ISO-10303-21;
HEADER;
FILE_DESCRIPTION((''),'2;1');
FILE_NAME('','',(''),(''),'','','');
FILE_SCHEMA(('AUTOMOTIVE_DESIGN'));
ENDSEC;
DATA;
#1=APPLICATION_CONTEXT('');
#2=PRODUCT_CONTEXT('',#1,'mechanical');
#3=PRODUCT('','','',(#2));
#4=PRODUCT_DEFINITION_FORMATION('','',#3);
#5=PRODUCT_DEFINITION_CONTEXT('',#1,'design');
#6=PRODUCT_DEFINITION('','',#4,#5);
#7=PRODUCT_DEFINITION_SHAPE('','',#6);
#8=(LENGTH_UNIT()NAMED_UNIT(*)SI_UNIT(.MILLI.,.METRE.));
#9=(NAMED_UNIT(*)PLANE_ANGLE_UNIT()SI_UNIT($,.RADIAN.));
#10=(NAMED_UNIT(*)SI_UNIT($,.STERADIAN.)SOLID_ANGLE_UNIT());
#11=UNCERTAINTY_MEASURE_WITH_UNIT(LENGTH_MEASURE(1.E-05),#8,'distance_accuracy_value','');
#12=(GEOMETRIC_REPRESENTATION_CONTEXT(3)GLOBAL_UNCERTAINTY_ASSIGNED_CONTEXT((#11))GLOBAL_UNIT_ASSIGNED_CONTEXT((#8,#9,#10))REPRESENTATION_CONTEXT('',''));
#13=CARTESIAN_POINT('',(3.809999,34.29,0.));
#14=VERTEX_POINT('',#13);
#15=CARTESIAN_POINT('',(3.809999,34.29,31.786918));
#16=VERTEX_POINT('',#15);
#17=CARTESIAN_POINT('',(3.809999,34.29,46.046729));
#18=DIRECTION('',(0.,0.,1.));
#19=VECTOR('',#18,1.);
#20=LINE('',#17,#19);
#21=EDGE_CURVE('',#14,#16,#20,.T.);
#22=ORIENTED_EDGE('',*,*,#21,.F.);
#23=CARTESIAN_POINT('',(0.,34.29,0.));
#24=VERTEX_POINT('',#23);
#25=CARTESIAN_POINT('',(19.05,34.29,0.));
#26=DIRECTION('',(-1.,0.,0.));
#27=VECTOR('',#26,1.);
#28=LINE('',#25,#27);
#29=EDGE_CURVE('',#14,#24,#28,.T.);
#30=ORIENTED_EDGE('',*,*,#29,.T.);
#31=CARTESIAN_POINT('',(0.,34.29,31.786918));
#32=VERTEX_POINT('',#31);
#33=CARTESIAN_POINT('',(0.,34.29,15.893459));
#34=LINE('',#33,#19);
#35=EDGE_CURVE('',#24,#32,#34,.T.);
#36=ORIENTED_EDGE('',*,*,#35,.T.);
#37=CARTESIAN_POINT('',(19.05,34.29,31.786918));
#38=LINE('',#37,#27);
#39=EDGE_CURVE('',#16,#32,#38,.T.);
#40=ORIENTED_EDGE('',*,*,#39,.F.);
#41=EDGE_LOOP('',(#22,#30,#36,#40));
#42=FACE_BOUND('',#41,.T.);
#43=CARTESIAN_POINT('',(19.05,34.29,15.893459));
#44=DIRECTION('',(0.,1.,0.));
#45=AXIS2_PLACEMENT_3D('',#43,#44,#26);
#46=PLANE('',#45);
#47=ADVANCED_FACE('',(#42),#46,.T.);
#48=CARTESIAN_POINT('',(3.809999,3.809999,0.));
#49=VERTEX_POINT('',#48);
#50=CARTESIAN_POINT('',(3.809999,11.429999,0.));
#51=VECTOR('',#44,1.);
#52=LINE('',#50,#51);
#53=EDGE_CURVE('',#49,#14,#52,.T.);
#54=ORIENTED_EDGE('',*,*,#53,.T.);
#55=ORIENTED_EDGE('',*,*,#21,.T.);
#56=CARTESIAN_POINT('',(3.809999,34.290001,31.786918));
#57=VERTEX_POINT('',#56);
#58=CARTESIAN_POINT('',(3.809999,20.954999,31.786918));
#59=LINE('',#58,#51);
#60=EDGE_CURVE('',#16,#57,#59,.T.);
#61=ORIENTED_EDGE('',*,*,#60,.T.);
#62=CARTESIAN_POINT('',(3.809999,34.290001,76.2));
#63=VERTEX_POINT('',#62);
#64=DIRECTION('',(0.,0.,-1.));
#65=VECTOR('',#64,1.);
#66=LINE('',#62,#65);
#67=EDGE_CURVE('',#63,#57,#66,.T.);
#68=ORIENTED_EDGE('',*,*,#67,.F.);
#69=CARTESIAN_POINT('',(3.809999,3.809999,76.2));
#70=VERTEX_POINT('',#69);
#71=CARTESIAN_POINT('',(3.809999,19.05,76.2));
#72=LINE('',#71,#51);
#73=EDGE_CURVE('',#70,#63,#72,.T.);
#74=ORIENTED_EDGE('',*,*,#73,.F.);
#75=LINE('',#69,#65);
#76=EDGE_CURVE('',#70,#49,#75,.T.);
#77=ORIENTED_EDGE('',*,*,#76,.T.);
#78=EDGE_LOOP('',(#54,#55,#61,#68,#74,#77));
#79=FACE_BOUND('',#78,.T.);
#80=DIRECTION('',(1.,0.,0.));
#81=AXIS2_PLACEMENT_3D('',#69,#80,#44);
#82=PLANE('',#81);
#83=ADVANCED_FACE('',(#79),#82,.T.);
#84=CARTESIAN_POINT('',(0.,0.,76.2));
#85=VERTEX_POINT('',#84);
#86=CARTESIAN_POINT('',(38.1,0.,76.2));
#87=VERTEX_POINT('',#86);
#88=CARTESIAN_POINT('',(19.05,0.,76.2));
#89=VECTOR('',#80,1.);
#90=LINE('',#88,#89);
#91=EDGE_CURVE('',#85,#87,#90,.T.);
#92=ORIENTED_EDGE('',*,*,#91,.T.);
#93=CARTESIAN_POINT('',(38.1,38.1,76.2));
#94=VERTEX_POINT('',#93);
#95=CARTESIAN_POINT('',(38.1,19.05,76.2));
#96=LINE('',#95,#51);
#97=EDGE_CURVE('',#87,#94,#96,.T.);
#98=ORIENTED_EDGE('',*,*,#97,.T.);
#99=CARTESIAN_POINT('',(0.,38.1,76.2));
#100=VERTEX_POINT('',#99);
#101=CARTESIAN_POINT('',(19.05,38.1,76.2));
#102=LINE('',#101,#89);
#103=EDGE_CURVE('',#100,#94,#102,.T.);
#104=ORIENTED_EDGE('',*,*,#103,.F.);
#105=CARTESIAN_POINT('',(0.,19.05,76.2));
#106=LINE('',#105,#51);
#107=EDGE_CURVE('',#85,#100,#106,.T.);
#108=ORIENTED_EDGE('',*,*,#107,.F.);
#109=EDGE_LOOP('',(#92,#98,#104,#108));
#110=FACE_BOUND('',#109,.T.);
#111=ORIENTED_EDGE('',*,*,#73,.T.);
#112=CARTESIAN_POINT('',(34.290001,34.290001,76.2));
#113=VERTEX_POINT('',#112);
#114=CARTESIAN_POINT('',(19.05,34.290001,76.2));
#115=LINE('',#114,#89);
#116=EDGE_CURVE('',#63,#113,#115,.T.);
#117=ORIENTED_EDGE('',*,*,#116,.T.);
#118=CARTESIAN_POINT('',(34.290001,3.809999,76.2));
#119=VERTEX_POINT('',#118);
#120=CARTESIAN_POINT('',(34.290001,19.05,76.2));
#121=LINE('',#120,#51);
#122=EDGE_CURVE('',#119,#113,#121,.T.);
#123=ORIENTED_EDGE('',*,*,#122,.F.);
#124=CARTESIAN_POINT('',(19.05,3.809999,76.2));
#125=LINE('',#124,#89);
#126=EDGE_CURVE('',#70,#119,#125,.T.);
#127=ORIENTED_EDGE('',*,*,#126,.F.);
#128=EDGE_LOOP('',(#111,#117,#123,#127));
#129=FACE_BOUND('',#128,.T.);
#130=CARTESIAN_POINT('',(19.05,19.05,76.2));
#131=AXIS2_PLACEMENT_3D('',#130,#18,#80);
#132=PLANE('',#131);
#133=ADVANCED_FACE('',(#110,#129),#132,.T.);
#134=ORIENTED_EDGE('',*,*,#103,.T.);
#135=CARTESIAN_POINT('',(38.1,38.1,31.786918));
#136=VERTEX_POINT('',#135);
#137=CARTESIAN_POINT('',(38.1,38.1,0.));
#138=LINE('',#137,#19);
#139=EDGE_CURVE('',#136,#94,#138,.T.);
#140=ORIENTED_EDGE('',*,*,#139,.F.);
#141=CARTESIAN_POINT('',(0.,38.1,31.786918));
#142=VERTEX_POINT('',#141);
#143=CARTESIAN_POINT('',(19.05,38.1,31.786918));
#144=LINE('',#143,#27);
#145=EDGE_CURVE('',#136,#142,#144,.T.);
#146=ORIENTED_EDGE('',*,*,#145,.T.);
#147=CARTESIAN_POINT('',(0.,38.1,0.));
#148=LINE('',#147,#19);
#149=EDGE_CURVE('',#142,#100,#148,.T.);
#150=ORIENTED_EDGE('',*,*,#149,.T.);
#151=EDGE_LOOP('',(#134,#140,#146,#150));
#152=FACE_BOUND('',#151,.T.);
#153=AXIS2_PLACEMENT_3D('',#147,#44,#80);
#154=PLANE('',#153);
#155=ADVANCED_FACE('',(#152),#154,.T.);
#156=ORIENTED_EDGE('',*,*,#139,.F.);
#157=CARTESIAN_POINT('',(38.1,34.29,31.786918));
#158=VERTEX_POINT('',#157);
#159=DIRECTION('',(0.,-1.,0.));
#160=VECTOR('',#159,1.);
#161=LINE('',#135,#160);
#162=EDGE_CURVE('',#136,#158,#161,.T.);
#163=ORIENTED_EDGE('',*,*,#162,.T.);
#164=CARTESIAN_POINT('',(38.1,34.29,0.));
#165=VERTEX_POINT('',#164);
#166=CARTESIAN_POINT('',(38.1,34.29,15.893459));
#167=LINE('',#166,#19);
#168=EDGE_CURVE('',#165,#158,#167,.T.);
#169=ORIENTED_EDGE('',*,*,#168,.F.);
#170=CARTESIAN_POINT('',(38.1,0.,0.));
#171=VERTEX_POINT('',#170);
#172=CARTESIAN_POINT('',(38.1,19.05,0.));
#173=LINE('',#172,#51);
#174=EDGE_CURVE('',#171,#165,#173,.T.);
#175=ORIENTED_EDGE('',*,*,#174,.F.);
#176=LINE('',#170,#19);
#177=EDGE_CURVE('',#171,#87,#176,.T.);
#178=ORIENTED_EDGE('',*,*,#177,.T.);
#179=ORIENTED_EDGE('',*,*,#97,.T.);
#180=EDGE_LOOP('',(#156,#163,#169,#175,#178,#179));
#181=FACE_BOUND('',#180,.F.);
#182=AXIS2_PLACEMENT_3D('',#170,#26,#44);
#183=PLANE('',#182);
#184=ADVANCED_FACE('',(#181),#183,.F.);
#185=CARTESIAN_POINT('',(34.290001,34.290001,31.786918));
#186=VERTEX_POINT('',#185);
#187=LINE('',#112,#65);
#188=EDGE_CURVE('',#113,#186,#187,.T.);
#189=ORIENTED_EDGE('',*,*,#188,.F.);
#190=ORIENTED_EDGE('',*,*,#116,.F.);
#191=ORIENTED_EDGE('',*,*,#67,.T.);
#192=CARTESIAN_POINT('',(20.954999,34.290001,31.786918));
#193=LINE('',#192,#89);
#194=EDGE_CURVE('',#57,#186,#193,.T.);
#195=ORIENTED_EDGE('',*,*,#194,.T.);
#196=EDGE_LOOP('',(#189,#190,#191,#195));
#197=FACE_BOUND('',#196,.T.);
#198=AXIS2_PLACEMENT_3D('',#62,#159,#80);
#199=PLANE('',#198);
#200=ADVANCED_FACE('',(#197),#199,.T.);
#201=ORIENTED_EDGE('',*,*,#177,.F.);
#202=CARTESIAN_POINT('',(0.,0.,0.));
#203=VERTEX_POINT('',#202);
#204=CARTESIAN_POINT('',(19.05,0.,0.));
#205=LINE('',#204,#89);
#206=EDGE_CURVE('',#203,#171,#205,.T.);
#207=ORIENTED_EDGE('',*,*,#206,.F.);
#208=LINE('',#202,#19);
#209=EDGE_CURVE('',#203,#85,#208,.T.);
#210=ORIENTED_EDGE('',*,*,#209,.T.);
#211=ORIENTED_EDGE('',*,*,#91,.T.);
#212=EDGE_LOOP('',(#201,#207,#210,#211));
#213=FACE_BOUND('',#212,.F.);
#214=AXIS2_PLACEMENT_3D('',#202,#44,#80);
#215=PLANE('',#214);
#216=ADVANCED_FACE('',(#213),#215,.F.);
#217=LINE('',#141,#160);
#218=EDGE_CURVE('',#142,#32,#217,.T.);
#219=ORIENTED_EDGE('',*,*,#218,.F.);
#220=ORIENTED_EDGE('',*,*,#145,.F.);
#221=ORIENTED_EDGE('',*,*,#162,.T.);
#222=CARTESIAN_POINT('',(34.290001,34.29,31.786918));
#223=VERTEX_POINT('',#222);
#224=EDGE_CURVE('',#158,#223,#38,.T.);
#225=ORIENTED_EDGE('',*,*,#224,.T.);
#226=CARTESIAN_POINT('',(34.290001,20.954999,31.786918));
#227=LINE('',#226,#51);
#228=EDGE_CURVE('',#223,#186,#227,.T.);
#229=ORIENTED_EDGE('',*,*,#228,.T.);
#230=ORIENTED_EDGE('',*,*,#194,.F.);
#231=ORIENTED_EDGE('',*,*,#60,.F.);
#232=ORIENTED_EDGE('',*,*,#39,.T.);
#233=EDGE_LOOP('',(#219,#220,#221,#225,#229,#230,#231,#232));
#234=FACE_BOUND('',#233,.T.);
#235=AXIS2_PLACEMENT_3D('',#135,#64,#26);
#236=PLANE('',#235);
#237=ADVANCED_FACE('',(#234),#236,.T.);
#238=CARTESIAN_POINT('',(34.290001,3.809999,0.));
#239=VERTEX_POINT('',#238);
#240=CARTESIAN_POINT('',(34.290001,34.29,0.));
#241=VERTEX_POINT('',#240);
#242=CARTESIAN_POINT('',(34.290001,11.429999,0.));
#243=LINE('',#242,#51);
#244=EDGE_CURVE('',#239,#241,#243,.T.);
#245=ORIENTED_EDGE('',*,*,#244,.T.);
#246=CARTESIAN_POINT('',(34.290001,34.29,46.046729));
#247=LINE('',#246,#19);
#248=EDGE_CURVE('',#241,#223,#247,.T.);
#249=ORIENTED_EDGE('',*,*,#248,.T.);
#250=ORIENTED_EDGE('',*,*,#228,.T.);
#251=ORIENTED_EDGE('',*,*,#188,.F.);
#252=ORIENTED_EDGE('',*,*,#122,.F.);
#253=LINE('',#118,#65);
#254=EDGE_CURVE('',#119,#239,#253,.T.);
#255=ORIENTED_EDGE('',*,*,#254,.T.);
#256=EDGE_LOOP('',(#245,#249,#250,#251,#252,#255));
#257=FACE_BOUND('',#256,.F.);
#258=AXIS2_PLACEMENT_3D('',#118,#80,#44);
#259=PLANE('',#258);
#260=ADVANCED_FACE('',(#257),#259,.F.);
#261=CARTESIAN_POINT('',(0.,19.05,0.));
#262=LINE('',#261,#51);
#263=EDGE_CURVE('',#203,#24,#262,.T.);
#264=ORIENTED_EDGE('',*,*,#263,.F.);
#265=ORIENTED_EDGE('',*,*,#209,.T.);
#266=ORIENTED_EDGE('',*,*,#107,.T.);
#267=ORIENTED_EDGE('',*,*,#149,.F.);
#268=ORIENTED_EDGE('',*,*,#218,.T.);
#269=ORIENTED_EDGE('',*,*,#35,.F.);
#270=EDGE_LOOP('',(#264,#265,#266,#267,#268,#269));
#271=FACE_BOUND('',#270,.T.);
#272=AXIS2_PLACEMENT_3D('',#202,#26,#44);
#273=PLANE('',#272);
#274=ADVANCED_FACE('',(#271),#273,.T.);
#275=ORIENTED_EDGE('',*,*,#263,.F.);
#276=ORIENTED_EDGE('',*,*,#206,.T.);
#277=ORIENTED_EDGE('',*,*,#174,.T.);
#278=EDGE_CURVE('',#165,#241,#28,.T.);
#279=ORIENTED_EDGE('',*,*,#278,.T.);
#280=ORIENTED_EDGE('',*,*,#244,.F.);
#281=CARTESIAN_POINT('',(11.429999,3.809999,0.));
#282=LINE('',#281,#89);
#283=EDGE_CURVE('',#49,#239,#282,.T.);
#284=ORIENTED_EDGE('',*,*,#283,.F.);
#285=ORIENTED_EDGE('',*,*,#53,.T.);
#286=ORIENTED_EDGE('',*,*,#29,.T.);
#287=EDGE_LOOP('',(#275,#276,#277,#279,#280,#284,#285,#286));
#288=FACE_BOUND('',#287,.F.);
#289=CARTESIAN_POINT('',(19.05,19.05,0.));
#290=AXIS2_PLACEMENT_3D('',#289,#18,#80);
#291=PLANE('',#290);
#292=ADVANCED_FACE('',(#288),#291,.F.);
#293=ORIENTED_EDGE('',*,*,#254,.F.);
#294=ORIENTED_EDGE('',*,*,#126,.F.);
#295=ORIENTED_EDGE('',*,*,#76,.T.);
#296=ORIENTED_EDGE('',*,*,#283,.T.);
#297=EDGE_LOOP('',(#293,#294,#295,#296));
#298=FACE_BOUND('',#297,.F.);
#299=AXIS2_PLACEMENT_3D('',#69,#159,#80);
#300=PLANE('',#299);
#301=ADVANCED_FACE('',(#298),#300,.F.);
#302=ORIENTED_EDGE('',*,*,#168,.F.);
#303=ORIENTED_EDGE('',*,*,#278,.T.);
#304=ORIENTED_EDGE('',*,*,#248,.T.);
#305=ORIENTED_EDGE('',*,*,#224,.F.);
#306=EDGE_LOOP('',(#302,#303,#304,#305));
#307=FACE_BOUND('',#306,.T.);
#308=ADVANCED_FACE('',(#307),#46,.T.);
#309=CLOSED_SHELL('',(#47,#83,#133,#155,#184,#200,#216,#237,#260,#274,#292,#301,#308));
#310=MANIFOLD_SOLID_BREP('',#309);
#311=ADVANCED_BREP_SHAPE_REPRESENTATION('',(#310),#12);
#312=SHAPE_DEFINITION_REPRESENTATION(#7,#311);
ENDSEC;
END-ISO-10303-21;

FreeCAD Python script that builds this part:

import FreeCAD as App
import Part
import Sketcher
Q = App.Units.Quantity


def add_polygon(sketch, points):
    """Adds a closed chain of lines whose ends are joined by coincident constraints."""
    first, n = sketch.GeometryCount, len(points)
    for a, b in zip(points, points[1:] + points[:1]):
        sketch.addGeometry(Part.LineSegment(App.Vector(*a, 0), App.Vector(*b, 0)), False)
    for i in range(n):
        sketch.addConstraint(Sketcher.Constraint("Coincident", first + i, 2, first + (i + 1) % n, 1))

doc = App.newDocument("Part")
params = doc.addObject("Spreadsheet::Sheet", "Params")
for row, (alias, value) in enumerate([
    ("sketch1_width", "1.5 in"),
    ("pad1_length", "3 in"),
    ("sketch2_width", "1.2000001 in"),
    ("pocket1_length", "3.5 in"),
    ("sketch3_width", "1.5 in"),
    ("pocket2_length", "0.15 in"),
], start=1):
    params.set(f"A{row}", alias)
    params.set(f"B{row}", "=" + value)
    params.setAlias(f"B{row}", alias)

body = doc.addObject("PartDesign::Body", "Body")

sketch1 = body.newObject("Sketcher::SketchObject", "Sketch")
sketch1.AttachmentSupport = (doc.getObject("XY_Plane"), [""])
sketch1.MapMode = "FlatFace"
add_polygon(sketch1, [(0, 38), (0, 0), (38, 0), (38, 38)])
sketch1.addConstraint([
    Sketcher.Constraint("Vertical", 0),
    Sketcher.Constraint("Horizontal", 1),
    Sketcher.Constraint("Vertical", 2),
    Sketcher.Constraint("Horizontal", 3),
    Sketcher.Constraint("Coincident", 0, 2, -1, 1),
    Sketcher.Constraint("Equal", 3, 0),
    Sketcher.Constraint("DistanceX", 1, 1, 1, 2, Q("1.5 in")),
])
sketch1.setExpression("Constraints[10]", "Params.sketch1_width")
pad1 = body.newObject("PartDesign::Pad", "Pad")
pad1.Profile = sketch1
pad1.setExpression("Length", "Params.pad1_length")

sketch2 = body.newObject("Sketcher::SketchObject", "Sketch001")
sketch2.AttachmentSupport = (doc.getObject("XY_Plane"), [""])
sketch2.MapMode = "FlatFace"
sketch2.AttachmentOffset = App.Placement(App.Vector(0, 0, 3 * 25.4), App.Rotation())
add_polygon(sketch2, [(4, 34), (4, 4), (34, 4), (34, 34)])
sketch2.addConstraint([
    Sketcher.Constraint("Vertical", 0),
    Sketcher.Constraint("Horizontal", 1),
    Sketcher.Constraint("Vertical", 2),
    Sketcher.Constraint("Horizontal", 3),
    Sketcher.Constraint("Equal", 3, 0),
    Sketcher.Constraint("DistanceX", 1, 1, 1, 2, Q("1.2000001 in")),
    Sketcher.Constraint("DistanceX", -1, 1, 0, 2, Q("0.15 in")),
    Sketcher.Constraint("DistanceY", -1, 1, 0, 2, Q("0.15 in")),
])
sketch2.setExpression("Constraints[9]", "Params.sketch2_width")
pocket1 = body.newObject("PartDesign::Pocket", "Pocket")
pocket1.Profile = sketch2
pocket1.setExpression("Length", "Params.pocket1_length")

sketch3 = body.newObject("Sketcher::SketchObject", "Sketch002")
sketch3.AttachmentSupport = (doc.getObject("XZ_Plane"), [""])
sketch3.MapMode = "FlatFace"
sketch3.AttachmentOffset = App.Placement(App.Vector(0, 0, -1.5 * 25.4), App.Rotation())
add_polygon(sketch3, [(38, 32), (38, 0), (0, 0), (0, 32)])
sketch3.addConstraint([
    Sketcher.Constraint("Vertical", 0),
    Sketcher.Constraint("Horizontal", 1),
    Sketcher.Constraint("Vertical", 2),
    Sketcher.Constraint("Horizontal", 3),
    Sketcher.Constraint("Coincident", 1, 2, -1, 1),
    Sketcher.Constraint("DistanceX", 1, 2, 1, 1, Q("1.5 in")),
    Sketcher.Constraint("DistanceY", 0, 2, 0, 1, 31.786919),
])
sketch3.setExpression("Constraints[9]", "Params.sketch3_width")
pocket2 = body.newObject("PartDesign::Pocket", "Pocket001")
pocket2.Profile = sketch3
pocket2.setExpression("Length", "Params.pocket2_length")
pocket2.Reversed = True

doc.recompute()
